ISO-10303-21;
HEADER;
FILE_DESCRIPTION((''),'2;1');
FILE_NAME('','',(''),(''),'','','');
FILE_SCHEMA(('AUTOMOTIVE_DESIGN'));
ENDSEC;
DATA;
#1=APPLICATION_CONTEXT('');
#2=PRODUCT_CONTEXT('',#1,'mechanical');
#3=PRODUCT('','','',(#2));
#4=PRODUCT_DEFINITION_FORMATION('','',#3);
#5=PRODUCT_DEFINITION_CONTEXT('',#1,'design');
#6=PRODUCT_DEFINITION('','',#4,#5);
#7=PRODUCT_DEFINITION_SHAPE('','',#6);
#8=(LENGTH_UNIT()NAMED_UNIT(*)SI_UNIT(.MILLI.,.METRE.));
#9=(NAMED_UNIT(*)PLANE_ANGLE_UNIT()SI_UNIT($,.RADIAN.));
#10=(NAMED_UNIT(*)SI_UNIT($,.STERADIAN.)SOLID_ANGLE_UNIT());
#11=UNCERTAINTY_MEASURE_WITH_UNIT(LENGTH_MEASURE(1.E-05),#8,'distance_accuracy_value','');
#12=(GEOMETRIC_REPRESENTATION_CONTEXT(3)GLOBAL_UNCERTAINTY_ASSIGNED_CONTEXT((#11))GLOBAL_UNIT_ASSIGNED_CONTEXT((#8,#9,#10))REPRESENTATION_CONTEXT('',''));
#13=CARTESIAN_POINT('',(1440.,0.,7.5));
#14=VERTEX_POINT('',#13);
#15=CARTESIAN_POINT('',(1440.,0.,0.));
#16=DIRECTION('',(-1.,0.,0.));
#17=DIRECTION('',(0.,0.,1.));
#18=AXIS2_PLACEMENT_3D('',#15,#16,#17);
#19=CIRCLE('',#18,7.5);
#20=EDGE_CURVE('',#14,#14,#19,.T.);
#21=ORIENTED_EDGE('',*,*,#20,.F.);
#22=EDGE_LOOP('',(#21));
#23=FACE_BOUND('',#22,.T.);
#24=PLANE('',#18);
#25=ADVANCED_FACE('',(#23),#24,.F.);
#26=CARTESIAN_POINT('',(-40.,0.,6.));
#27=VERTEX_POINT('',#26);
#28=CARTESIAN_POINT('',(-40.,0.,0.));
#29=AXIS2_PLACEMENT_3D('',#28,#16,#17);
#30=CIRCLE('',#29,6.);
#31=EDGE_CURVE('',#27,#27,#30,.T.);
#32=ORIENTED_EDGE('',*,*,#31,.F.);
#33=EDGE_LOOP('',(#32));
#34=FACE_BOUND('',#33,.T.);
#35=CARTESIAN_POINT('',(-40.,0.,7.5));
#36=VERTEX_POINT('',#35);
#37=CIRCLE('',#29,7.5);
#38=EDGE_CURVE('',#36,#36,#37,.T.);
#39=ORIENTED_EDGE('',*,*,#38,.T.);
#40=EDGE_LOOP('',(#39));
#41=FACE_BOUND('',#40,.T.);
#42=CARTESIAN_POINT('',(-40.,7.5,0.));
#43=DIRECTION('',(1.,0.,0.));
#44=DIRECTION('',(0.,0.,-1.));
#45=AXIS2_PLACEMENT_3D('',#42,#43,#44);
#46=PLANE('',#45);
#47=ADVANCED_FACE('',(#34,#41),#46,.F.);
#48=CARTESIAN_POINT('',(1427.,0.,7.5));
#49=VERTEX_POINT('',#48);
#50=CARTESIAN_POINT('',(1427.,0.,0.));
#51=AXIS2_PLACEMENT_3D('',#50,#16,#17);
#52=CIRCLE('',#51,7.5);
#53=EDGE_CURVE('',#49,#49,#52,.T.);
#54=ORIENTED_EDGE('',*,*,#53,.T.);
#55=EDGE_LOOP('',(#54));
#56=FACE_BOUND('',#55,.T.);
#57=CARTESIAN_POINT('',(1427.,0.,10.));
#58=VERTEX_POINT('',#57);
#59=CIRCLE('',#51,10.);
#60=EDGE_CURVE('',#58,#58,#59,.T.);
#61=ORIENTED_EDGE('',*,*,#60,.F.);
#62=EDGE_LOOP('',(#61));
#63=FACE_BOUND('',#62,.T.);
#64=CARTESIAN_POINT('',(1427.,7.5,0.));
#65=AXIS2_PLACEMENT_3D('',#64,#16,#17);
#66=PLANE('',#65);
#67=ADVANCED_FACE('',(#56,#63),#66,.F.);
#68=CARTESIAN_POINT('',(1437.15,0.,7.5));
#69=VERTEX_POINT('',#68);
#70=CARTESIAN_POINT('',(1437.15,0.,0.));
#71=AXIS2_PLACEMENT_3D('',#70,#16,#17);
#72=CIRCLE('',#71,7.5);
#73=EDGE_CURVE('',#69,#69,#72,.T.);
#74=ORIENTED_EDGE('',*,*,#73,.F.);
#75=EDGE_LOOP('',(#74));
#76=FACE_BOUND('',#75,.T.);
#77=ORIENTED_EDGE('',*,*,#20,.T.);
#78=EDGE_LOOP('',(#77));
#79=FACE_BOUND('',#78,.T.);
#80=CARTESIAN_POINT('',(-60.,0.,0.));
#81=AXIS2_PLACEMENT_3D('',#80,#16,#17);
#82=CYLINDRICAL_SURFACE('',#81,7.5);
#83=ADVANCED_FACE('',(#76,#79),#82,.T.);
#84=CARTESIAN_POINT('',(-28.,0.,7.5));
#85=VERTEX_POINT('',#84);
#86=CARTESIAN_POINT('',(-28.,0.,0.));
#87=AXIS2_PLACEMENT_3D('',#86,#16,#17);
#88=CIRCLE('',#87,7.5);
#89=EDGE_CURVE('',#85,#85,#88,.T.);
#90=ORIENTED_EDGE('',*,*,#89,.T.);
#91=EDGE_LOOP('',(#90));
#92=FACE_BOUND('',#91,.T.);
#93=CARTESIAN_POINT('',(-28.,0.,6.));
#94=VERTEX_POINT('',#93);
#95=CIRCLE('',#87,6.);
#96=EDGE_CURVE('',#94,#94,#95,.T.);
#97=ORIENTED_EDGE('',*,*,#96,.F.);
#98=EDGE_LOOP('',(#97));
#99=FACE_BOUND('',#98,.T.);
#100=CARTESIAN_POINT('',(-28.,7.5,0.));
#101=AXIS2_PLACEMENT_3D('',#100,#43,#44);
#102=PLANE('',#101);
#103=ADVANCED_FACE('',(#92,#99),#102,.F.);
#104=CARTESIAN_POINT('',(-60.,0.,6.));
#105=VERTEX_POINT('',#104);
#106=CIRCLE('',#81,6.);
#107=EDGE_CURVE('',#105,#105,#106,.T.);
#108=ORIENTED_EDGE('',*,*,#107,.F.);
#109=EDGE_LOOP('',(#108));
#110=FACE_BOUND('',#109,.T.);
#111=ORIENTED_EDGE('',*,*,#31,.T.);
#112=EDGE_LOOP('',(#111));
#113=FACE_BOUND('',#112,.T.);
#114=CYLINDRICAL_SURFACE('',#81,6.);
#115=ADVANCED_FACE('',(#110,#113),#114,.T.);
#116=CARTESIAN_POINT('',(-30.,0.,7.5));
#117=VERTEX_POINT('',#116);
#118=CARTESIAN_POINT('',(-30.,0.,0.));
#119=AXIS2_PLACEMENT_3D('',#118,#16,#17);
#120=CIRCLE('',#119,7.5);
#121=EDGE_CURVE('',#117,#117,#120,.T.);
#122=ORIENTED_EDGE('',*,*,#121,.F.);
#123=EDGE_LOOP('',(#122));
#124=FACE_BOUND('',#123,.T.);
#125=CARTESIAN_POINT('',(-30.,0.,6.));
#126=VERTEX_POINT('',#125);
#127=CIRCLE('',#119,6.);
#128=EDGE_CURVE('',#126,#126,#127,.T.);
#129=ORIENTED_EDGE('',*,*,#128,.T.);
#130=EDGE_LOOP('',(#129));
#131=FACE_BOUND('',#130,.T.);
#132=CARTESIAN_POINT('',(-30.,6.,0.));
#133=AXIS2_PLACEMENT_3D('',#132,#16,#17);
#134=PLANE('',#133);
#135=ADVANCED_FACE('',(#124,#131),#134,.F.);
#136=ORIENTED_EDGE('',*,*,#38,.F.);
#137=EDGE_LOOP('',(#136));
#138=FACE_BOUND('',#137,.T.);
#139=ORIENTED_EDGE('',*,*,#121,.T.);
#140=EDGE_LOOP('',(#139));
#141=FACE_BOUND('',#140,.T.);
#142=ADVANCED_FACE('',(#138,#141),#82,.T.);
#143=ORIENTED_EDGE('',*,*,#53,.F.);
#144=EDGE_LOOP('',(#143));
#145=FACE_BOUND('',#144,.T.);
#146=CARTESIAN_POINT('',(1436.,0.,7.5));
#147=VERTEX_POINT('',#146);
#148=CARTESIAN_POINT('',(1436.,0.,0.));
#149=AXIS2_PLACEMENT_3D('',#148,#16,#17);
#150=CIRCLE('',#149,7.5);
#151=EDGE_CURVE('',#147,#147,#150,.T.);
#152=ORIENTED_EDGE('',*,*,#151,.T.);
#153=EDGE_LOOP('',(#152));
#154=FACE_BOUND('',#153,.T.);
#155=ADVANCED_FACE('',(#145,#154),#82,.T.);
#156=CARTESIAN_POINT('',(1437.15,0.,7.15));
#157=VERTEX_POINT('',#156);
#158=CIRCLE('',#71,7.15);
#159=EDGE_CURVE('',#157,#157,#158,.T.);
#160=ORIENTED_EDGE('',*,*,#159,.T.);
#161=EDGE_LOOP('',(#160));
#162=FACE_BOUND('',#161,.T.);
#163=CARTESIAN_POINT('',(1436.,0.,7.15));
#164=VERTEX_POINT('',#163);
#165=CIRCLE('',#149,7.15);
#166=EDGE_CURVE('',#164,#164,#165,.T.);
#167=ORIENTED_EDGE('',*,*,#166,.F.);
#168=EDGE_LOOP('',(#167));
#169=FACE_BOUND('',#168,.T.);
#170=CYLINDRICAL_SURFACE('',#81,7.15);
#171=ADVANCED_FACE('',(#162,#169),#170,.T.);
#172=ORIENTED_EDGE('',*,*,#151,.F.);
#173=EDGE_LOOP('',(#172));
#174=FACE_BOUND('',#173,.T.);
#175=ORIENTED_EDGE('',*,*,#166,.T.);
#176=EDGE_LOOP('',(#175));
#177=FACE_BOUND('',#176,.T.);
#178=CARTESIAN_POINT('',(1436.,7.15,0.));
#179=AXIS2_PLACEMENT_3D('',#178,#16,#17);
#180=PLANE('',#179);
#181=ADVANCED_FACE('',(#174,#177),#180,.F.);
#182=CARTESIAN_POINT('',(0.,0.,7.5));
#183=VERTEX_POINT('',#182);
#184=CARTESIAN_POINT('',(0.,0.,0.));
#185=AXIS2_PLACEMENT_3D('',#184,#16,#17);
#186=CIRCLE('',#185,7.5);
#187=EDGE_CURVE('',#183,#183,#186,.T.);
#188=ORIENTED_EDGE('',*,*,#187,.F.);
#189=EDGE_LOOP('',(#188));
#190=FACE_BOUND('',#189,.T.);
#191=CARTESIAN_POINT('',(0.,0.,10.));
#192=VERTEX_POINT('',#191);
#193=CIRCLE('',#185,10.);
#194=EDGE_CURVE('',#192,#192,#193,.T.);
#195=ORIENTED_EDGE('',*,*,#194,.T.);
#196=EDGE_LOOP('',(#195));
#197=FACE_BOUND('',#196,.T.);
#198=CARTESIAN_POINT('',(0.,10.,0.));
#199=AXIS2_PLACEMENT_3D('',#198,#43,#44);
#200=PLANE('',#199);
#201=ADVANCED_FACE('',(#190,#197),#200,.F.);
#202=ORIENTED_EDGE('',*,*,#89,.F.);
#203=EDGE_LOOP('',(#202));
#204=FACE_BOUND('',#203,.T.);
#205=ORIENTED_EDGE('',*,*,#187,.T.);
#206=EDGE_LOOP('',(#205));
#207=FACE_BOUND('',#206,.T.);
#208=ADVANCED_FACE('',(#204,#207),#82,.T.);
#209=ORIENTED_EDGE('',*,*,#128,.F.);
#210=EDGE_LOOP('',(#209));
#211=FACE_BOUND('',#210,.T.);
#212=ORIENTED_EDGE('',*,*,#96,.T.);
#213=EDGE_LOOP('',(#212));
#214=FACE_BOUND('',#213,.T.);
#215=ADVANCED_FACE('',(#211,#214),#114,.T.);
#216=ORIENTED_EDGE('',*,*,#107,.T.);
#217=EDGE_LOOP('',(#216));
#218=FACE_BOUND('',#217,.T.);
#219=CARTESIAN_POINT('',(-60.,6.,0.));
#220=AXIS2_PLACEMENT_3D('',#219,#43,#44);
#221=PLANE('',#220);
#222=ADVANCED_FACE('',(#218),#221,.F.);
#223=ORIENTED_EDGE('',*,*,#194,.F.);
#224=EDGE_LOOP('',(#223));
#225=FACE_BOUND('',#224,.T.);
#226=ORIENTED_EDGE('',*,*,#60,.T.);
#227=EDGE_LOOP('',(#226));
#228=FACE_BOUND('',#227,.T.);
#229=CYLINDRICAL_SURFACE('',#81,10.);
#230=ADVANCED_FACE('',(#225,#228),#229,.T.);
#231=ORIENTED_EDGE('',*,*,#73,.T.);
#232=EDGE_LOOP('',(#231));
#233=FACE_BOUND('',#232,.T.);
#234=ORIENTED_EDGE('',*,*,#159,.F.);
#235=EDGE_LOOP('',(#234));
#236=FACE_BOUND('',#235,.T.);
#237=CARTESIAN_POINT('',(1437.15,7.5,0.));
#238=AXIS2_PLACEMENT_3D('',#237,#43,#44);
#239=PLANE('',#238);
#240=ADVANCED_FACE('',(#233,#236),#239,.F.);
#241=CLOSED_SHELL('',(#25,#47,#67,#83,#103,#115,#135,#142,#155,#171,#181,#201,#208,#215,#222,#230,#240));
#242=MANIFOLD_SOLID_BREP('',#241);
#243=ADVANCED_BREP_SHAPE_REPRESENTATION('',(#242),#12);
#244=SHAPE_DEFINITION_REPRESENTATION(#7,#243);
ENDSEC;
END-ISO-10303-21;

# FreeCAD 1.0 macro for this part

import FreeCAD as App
import Part
import Sketcher

V = App.Vector

doc = App.newDocument("Part")
params = doc.addObject("Spreadsheet::Sheet", "Params")
for row, (alias, value) in enumerate([
    ("sketch1_width", "1500 mm"),
    ("sketch1_width2", "9 mm"),
    ("sketch1_width3", "1427 mm"),
    ("sketch1_width4", "28 mm"),
    ("sketch1_width5", "2 mm"),
    ("revolution_angle", "360 deg"),
], start=1):
    params.set(f"A{row}", alias)
    params.set(f"B{row}", "=" + value)
    params.setAlias(f"B{row}", alias)

body = doc.addObject("PartDesign::Body", "Body")

# Sketch on XY plane
sketch1 = doc.addObject("Sketcher::SketchObject", "Sketch")
body.addObject(sketch1)
sketch1.AttachmentSupport = (doc.XY_Plane, [""])
sketch1.MapMode = "FlatFace"
sketch1.addGeometry([
    Part.LineSegment(V(-60, 0, 0), V(1440, 0, 0)),  # 0
    Part.LineSegment(V(1440, 0, 0), V(1440, 7.5, 0)),  # 1
    Part.LineSegment(V(1440, 7.5, 0), V(1437.15, 7.5, 0)),  # 2
    Part.LineSegment(V(1437.15, 7.5, 0), V(1437.15, 7.15, 0)),  # 3
    Part.LineSegment(V(1437.15, 7.15, 0), V(1436, 7.15, 0)),  # 4
    Part.LineSegment(V(1436, 7.15, 0), V(1436, 7.5, 0)),  # 5
    Part.LineSegment(V(1436, 7.5, 0), V(1427, 7.5, 0)),  # 6
    Part.LineSegment(V(1427, 7.5, 0), V(1427, 10, 0)),  # 7
    Part.LineSegment(V(1427, 10, 0), V(0, 10, 0)),  # 8
    Part.LineSegment(V(0, 10, 0), V(0, 7.5, 0)),  # 9
    Part.LineSegment(V(0, 7.5, 0), V(-28, 7.5, 0)),  # 10
    Part.LineSegment(V(-28, 7.5, 0), V(-28, 6, 0)),  # 11
    Part.LineSegment(V(-28, 6, 0), V(-30, 6, 0)),  # 12
    Part.LineSegment(V(-30, 6, 0), V(-30, 7.5, 0)),  # 13
    Part.LineSegment(V(-30, 7.5, 0), V(-40, 7.5, 0)),  # 14
    Part.LineSegment(V(-40, 7.5, 0), V(-40, 6, 0)),  # 15
    Part.LineSegment(V(-40, 6, 0), V(-60, 6, 0)),  # 16
    Part.LineSegment(V(-60, 6, 0), V(-60, 0, 0)),  # 17
], False)
sketch1.addConstraint([
    Sketcher.Constraint("Coincident", 0, 2, 1, 1),
    Sketcher.Constraint("Coincident", 1, 2, 2, 1),
    Sketcher.Constraint("Coincident", 2, 2, 3, 1),
    Sketcher.Constraint("Coincident", 3, 2, 4, 1),
    Sketcher.Constraint("Coincident", 4, 2, 5, 1),
    Sketcher.Constraint("Coincident", 5, 2, 6, 1),
    Sketcher.Constraint("Coincident", 6, 2, 7, 1),
    Sketcher.Constraint("Coincident", 7, 2, 8, 1),
    Sketcher.Constraint("Coincident", 8, 2, 9, 1),
    Sketcher.Constraint("Coincident", 9, 2, 10, 1),
    Sketcher.Constraint("Coincident", 10, 2, 11, 1),
    Sketcher.Constraint("Coincident", 11, 2, 12, 1),
    Sketcher.Constraint("Coincident", 12, 2, 13, 1),
    Sketcher.Constraint("Coincident", 13, 2, 14, 1),
    Sketcher.Constraint("Coincident", 14, 2, 15, 1),
    Sketcher.Constraint("Coincident", 15, 2, 16, 1),
    Sketcher.Constraint("Coincident", 16, 2, 17, 1),
    Sketcher.Constraint("Coincident", 17, 2, 0, 1),
    Sketcher.Constraint("Horizontal", 0),
    Sketcher.Constraint("Vertical", 1),
    Sketcher.Constraint("Horizontal", 2),
    Sketcher.Constraint("Vertical", 3),
    Sketcher.Constraint("Horizontal", 4),
    Sketcher.Constraint("Vertical", 5),
    Sketcher.Constraint("Horizontal", 6),
    Sketcher.Constraint("Vertical", 7),
    Sketcher.Constraint("Horizontal", 8),
    Sketcher.Constraint("Vertical", 9),
    Sketcher.Constraint("Horizontal", 10),
    Sketcher.Constraint("Vertical", 11),
    Sketcher.Constraint("Horizontal", 12),
    Sketcher.Constraint("Vertical", 13),
    Sketcher.Constraint("Horizontal", 14),
    Sketcher.Constraint("Vertical", 15),
    Sketcher.Constraint("Horizontal", 16),
    Sketcher.Constraint("Vertical", 17),
    Sketcher.Constraint("PointOnObject", 0, 2, -1),
    Sketcher.Constraint("PointOnObject", 8, 2, -2),
    Sketcher.Constraint("Horizontal", 2, 2, 5, 2),
    Sketcher.Constraint("Horizontal", 6, 2, 9, 2),
    Sketcher.Constraint("Horizontal", 10, 2, 13, 2),
    Sketcher.Constraint("Horizontal", 12, 2, 15, 2),
    Sketcher.Constraint("DistanceX", 0, 1, 0, 2, 1500.0),
    Sketcher.Constraint("DistanceX", 6, 2, 6, 1, 9.0),
    Sketcher.Constraint("DistanceX", 8, 2, 8, 1, 1427.0),
    Sketcher.Constraint("DistanceX", 10, 2, 10, 1, 28.0),
    Sketcher.Constraint("DistanceX", 12, 2, 12, 1, 2.0),
    Sketcher.Constraint("DistanceX", 14, 2, 14, 1, 10.0),
    Sketcher.Constraint("DistanceX", 16, 2, 16, 1, 20.0),
    Sketcher.Constraint("DistanceY", 17, 2, 17, 1, 6.0),
    Sketcher.Constraint("DistanceY", 1, 1, 1, 2, 7.5),
    Sketcher.Constraint("DistanceY", 7, 1, 7, 2, 2.5),
    Sketcher.Constraint("DistanceX", 2, 2, 2, 1, 2.85),
    Sketcher.Constraint("DistanceY", 3, 2, 3, 1, 0.35),
])
sketch1.setExpression("Constraints[42]", "Params.sketch1_width")
sketch1.setExpression("Constraints[43]", "Params.sketch1_width2")
sketch1.setExpression("Constraints[44]", "Params.sketch1_width3")
sketch1.setExpression("Constraints[45]", "Params.sketch1_width4")
sketch1.setExpression("Constraints[46]", "Params.sketch1_width5")
revolution = doc.addObject("PartDesign::Revolution", "Revolution")
body.addObject(revolution)
revolution.Profile = sketch1
revolution.ReferenceAxis = (sketch1, ["H_Axis"])
revolution.setExpression("Angle", "Params.revolution_angle")

doc.recompute()
